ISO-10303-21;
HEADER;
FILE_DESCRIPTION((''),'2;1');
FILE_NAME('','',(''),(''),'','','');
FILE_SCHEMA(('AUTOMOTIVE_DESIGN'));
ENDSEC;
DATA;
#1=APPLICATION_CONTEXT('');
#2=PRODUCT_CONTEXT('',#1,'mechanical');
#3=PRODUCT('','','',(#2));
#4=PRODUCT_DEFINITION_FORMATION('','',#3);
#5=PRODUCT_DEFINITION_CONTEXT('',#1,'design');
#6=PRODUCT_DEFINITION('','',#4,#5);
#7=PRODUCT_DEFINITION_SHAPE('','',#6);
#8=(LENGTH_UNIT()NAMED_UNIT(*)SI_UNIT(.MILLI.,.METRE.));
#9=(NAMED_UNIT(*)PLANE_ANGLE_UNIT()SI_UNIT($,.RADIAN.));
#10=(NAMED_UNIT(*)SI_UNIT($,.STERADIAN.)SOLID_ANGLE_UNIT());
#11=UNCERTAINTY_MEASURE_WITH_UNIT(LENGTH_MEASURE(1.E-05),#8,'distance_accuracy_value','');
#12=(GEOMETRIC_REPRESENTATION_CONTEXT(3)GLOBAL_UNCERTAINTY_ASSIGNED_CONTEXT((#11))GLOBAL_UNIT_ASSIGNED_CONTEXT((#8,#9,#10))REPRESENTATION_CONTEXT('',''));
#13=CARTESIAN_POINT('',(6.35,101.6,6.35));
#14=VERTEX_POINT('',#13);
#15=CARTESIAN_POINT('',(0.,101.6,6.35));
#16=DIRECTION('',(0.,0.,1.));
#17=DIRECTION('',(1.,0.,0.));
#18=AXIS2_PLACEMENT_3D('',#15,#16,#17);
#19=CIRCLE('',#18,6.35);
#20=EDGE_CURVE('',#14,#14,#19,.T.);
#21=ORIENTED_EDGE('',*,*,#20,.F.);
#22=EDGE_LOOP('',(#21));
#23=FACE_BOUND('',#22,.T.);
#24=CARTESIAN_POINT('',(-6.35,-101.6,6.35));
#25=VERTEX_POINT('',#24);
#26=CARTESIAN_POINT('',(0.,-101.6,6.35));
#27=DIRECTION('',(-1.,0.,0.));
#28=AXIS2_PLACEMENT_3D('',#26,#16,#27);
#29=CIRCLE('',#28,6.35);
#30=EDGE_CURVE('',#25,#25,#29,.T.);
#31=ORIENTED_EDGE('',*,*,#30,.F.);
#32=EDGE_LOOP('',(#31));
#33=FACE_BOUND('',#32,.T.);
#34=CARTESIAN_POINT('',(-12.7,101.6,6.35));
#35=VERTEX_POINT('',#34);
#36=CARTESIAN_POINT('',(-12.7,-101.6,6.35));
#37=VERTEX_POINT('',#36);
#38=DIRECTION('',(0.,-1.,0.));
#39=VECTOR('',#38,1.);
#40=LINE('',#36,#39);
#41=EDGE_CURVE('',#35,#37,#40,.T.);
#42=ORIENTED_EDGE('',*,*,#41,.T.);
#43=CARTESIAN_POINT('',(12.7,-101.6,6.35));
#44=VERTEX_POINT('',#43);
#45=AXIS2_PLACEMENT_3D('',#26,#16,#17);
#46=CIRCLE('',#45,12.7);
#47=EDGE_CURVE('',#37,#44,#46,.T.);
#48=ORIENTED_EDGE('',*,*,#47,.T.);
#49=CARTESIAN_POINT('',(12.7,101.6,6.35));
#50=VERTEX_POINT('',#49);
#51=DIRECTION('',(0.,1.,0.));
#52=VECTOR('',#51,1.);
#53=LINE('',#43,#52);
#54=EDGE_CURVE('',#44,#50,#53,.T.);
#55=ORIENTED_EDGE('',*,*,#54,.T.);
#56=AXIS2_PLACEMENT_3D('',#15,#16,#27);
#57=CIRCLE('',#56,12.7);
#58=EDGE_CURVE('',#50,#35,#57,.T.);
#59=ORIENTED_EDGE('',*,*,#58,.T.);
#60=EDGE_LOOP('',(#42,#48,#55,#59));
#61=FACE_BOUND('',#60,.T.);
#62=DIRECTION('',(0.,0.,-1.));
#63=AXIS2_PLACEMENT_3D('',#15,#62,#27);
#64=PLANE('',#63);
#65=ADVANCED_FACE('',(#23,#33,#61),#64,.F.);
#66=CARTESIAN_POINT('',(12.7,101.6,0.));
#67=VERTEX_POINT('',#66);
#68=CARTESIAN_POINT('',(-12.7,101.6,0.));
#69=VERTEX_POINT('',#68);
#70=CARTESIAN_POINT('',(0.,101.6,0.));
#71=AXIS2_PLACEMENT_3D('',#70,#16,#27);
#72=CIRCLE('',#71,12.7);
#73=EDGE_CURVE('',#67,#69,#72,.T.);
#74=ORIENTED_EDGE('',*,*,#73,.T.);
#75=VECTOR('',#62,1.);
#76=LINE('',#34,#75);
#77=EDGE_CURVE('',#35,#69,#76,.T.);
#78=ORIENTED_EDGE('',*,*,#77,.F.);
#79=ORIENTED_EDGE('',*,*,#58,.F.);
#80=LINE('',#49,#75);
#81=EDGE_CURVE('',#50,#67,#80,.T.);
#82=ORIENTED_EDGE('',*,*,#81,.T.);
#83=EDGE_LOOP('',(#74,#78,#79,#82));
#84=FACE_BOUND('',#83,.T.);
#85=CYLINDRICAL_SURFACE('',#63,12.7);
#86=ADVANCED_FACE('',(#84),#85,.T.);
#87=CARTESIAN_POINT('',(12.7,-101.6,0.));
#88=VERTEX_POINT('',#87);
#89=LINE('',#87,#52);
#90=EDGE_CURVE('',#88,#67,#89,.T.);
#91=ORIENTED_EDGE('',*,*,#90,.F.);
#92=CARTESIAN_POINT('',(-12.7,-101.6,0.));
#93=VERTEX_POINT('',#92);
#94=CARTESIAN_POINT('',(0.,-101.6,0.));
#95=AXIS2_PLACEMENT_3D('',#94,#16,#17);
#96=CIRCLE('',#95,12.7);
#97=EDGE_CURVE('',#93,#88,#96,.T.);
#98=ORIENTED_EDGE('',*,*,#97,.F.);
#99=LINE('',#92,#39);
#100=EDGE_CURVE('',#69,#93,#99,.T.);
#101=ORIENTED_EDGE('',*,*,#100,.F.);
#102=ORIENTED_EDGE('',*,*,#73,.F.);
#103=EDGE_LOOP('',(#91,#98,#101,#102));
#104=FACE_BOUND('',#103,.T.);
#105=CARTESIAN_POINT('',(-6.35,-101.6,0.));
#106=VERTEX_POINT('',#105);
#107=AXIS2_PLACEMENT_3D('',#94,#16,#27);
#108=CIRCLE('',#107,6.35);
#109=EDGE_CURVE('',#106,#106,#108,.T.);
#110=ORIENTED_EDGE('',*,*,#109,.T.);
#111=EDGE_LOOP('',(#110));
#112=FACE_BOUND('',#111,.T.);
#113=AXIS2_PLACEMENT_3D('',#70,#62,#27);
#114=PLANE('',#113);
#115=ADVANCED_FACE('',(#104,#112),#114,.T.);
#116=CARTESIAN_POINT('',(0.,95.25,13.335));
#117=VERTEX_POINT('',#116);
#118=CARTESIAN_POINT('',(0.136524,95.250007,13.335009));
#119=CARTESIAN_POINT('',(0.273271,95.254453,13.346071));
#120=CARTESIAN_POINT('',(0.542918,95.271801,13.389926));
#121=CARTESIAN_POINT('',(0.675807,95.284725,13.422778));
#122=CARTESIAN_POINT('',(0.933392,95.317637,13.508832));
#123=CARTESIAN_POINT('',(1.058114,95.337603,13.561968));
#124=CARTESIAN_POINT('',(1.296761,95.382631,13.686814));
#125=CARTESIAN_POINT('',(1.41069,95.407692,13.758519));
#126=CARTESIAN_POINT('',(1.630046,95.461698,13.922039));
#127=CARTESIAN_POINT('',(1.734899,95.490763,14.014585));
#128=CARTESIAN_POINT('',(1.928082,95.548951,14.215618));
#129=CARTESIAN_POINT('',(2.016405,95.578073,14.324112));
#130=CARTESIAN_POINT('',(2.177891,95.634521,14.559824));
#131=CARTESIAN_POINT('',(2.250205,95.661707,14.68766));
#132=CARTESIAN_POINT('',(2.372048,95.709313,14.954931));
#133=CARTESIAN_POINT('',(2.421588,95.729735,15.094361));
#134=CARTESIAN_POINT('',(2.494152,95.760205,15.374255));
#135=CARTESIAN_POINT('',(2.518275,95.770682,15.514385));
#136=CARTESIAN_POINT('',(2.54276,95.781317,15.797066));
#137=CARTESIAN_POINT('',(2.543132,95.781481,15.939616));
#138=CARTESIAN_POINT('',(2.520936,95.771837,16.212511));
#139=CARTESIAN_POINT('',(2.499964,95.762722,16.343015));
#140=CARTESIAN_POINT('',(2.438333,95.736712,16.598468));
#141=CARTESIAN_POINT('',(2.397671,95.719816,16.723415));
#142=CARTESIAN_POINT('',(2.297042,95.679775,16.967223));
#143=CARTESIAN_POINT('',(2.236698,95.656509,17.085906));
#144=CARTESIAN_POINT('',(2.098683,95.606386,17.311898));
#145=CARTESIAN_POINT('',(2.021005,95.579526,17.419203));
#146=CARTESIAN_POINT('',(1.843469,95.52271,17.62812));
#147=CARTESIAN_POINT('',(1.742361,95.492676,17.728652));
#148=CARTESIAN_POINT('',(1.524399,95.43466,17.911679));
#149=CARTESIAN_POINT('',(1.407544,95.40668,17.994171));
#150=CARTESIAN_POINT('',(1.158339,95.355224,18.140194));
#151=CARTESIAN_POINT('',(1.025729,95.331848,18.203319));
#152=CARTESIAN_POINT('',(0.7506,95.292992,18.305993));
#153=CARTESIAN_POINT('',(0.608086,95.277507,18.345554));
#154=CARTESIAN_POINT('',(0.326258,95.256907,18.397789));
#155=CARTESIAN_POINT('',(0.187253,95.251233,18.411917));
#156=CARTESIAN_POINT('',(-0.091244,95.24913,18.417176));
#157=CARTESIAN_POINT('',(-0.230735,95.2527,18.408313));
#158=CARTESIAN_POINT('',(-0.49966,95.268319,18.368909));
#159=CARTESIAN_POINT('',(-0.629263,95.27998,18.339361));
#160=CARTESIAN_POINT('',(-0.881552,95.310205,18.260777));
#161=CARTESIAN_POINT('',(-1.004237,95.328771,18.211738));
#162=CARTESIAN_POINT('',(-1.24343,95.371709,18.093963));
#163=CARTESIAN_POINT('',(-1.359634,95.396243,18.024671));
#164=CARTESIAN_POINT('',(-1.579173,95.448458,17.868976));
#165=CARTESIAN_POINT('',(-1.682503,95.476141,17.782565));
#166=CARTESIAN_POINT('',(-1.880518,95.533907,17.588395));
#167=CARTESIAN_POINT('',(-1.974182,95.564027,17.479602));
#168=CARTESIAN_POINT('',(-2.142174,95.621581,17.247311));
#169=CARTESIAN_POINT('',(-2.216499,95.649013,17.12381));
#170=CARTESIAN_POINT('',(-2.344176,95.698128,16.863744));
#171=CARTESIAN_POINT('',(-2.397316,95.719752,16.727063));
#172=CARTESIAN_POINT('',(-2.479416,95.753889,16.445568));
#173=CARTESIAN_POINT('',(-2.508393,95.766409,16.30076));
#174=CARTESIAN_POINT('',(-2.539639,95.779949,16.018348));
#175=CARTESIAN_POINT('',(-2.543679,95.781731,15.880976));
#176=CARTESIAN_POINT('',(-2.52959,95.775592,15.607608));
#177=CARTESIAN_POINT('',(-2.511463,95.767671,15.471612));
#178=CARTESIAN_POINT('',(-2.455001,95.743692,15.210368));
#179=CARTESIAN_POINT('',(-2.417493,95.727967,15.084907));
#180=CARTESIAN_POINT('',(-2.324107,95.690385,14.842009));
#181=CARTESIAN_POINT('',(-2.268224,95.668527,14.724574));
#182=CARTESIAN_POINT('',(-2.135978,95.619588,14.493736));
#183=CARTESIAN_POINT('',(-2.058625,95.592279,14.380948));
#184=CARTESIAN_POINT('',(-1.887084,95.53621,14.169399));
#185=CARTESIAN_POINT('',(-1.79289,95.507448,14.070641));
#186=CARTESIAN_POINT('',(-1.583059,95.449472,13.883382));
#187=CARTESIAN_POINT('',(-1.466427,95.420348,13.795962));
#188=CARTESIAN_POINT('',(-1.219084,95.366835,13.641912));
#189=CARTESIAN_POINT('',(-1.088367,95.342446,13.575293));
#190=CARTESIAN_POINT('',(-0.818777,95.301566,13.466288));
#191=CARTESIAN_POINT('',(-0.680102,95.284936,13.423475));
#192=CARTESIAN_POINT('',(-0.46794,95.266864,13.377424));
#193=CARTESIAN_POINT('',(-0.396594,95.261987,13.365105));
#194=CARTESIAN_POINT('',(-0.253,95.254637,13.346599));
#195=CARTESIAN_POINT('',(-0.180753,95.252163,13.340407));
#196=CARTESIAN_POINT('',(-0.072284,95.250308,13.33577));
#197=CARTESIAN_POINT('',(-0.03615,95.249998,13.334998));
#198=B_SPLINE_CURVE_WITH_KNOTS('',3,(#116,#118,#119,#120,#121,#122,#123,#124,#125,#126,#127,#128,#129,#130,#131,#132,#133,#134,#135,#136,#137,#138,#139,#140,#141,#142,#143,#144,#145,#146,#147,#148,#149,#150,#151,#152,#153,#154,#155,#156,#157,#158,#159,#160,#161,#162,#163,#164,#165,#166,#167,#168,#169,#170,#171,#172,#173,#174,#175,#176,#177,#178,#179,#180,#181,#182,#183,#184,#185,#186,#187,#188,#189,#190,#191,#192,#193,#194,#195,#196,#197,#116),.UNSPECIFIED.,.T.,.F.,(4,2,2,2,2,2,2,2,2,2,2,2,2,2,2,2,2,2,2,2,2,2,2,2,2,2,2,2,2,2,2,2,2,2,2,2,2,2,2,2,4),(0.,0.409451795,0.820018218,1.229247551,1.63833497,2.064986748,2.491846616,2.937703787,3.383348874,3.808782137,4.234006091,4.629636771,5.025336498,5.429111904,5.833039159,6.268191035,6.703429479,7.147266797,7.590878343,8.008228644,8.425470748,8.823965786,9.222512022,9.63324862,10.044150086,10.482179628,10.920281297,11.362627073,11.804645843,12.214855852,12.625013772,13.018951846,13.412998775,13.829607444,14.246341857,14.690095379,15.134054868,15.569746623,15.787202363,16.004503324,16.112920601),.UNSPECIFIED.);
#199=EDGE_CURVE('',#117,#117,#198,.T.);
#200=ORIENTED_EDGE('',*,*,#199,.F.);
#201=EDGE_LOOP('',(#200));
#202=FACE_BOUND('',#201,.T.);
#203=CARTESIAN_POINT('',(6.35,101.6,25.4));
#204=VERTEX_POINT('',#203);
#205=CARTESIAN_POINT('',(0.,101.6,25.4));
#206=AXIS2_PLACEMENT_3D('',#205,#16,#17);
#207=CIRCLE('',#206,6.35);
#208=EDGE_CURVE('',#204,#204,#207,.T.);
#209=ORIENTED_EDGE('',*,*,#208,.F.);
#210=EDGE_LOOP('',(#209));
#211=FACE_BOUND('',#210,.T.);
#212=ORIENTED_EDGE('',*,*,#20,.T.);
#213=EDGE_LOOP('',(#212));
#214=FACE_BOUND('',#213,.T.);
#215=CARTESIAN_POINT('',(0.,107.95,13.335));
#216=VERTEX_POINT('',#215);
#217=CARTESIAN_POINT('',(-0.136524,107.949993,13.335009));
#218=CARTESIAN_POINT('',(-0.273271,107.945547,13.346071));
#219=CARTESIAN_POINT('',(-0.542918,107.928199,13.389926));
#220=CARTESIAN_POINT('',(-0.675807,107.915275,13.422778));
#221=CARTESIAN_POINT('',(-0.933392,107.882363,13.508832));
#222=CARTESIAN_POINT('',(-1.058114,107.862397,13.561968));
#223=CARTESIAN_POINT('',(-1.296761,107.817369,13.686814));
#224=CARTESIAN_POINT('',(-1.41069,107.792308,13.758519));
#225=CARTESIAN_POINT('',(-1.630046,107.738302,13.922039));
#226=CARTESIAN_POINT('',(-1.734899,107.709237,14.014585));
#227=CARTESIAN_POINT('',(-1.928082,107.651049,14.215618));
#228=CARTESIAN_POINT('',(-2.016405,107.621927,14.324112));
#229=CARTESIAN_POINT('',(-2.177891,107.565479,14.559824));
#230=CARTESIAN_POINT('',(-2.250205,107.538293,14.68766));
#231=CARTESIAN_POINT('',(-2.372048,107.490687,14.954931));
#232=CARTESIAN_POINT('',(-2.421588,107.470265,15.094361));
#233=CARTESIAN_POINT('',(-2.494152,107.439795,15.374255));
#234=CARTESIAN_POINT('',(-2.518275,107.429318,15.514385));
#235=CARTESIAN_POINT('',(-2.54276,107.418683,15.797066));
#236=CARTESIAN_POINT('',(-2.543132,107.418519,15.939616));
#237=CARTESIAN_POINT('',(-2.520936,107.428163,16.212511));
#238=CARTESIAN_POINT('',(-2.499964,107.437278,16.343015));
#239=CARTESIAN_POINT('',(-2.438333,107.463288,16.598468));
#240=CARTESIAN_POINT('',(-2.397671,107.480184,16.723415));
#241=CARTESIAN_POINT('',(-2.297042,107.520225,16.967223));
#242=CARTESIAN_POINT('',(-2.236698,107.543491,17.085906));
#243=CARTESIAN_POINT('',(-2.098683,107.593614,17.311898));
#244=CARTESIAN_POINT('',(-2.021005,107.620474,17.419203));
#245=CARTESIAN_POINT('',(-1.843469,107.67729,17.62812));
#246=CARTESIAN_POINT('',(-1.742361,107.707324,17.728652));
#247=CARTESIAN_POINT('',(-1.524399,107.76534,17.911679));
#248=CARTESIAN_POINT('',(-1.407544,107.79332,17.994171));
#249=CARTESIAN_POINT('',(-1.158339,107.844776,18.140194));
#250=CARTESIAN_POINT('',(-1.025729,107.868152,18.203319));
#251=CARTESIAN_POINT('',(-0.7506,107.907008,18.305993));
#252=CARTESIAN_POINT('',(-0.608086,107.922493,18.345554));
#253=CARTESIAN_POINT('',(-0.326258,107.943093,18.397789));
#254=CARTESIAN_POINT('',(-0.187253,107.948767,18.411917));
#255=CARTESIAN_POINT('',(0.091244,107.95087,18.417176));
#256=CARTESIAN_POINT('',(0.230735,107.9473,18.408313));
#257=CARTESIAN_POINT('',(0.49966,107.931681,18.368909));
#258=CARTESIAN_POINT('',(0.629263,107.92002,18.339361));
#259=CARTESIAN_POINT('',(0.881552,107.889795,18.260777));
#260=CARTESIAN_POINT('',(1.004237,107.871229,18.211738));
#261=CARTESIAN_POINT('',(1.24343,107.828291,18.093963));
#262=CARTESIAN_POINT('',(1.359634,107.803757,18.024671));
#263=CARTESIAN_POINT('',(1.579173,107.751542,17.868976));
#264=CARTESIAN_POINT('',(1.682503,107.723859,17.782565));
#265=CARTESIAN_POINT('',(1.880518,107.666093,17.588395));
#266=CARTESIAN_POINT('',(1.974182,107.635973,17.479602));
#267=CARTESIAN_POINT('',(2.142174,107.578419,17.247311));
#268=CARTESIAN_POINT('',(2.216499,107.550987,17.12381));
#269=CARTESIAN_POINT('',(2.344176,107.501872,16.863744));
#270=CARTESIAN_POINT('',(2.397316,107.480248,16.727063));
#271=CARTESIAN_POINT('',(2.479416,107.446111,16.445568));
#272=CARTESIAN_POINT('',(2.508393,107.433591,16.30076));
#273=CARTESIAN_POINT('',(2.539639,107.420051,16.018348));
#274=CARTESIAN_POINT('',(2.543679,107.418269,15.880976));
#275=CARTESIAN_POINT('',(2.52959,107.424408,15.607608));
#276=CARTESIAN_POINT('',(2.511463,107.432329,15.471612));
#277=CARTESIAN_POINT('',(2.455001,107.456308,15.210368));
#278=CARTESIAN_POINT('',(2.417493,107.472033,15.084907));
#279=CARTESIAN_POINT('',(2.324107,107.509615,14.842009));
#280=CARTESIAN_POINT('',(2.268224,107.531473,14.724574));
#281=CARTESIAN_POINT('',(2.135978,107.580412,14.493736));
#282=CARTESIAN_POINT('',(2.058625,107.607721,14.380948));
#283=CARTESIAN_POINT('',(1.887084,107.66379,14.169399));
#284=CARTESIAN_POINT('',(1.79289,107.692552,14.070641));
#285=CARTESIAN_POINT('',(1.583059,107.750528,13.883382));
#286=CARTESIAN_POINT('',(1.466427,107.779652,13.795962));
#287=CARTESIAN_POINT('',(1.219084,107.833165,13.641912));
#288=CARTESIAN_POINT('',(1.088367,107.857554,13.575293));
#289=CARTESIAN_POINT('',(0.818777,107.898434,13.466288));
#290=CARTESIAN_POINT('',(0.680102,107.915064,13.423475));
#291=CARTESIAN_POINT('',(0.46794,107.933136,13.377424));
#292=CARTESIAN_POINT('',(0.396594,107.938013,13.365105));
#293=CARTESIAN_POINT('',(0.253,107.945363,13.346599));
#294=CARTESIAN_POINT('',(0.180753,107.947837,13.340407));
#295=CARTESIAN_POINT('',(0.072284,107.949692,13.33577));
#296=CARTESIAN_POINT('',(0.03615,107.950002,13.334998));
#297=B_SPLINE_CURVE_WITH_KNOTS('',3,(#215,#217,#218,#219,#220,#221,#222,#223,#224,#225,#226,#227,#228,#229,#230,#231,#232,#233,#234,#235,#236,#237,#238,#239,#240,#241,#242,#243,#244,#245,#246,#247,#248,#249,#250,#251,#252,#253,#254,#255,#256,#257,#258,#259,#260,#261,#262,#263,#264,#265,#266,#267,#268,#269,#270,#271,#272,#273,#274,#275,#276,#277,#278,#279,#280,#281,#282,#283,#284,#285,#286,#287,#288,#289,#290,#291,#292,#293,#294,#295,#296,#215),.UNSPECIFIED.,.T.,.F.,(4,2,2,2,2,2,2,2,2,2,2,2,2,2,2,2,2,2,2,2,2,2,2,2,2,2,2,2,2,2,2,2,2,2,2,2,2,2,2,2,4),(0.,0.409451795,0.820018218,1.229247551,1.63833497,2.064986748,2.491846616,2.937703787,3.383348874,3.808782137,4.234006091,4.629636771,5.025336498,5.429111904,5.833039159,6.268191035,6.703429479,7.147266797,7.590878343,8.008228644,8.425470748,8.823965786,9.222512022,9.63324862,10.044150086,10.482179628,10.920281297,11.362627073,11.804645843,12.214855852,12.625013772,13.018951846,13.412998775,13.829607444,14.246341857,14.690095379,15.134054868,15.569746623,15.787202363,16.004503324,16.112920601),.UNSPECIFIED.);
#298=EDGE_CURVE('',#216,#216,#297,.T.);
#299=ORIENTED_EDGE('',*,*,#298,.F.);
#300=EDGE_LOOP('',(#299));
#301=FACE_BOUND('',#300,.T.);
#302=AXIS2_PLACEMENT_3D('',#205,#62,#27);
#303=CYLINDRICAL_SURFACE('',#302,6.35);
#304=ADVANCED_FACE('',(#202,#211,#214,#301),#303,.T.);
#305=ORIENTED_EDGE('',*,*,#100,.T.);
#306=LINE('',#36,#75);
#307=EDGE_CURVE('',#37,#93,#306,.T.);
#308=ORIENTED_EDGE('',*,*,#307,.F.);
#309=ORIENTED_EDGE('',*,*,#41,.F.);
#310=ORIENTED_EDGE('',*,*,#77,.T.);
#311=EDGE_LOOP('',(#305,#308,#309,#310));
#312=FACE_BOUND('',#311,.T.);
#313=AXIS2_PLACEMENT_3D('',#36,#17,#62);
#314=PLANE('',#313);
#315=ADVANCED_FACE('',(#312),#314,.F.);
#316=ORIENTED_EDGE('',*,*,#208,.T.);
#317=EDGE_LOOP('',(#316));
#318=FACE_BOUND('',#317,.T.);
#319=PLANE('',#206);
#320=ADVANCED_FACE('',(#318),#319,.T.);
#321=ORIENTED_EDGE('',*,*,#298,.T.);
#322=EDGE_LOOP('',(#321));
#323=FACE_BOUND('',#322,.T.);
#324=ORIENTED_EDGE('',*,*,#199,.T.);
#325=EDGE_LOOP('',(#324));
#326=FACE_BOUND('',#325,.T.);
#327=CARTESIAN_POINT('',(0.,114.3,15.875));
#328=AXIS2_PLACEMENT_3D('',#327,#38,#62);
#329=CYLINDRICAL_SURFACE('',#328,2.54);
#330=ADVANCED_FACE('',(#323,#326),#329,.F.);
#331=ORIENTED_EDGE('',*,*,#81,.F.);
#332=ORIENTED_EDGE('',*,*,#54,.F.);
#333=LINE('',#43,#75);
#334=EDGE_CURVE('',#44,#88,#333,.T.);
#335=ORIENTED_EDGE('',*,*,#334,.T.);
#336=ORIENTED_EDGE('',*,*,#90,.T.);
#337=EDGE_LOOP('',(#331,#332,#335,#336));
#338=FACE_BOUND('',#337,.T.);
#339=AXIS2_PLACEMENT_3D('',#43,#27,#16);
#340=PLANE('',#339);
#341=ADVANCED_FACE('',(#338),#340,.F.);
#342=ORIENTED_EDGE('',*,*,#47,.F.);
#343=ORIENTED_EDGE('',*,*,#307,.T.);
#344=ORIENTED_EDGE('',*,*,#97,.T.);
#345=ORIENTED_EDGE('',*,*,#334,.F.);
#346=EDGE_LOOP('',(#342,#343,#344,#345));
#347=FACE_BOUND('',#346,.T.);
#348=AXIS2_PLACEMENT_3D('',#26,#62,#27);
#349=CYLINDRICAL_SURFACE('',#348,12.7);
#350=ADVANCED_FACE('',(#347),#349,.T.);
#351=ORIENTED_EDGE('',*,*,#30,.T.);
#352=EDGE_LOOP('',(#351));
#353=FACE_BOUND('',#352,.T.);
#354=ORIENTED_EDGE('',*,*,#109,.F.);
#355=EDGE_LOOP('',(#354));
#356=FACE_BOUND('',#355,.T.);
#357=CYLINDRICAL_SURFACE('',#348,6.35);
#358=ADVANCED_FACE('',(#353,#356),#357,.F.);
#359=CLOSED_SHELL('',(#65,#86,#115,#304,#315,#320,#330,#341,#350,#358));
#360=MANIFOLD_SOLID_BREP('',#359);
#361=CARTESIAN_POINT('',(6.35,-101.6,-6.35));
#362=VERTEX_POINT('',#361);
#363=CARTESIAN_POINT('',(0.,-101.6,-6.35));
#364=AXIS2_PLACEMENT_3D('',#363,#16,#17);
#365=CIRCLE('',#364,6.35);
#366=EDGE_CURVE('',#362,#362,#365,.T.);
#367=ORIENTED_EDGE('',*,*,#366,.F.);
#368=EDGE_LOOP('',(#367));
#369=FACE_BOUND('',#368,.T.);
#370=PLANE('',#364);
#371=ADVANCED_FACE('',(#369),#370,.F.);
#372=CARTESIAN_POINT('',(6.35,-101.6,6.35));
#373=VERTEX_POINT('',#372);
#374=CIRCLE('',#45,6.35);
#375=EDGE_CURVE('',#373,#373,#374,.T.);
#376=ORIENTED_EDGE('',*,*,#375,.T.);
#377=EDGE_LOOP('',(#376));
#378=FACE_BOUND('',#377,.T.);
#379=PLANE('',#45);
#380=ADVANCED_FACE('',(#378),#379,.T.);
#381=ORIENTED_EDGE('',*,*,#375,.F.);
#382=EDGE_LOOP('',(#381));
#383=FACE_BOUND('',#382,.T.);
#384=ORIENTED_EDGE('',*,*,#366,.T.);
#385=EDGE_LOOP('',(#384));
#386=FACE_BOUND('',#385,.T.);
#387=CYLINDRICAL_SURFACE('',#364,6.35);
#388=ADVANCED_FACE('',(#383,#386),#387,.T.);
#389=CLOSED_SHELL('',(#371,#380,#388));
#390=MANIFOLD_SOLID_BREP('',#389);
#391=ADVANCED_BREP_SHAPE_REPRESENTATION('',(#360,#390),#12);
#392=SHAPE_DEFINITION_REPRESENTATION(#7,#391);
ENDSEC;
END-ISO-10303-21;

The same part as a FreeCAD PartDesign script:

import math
import FreeCAD as App
import Part
import Sketcher
from FreeCAD import Vector
Q = App.Units.Quantity

doc = App.newDocument("Part")
params = doc.addObject("Spreadsheet::Sheet", "Params")
for row, (alias, value) in enumerate([
    ("sketch1_diameter", "0.5 in"),
    ("sketch1_radius", "0.5 in"),
    ("sketch1_height", "8 in"),
    ("pad1_length", "0.25 in"),
    ("sketch2_diameter", "0.5 in"),
    ("pad2_length", "1 in"),
    ("sketch3_diameter", "0.2 in"),
    ("sketch4_diameter", "0.5 in"),
    ("pad3_length", "0.5 in"),
], start=1):
    params.set(f"A{row}", alias)
    params.set(f"B{row}", "=" + value)
    params.setAlias(f"B{row}", alias)

body = doc.addObject("PartDesign::Body", "Body")

sketch1 = body.newObject("Sketcher::SketchObject", "Sketch")
sketch1.AttachmentSupport = (doc.getObject("XY_Plane"), [""])
sketch1.MapMode = "FlatFace"
sketch1.addGeometry([
    Part.LineSegment(Vector(-13, 102, 0), Vector(-13, -102, 0)),
    Part.ArcOfCircle(Part.Circle(Vector(0, -102, 0), Vector(0, 0, 1), 13), math.radians(180), math.radians(360)),
    Part.LineSegment(Vector(13, -102, 0), Vector(13, 102, 0)),
    Part.ArcOfCircle(Part.Circle(Vector(0, 102, 0), Vector(0, 0, 1), 13), math.radians(0), math.radians(180)),
    Part.Circle(Vector(0, -102, 0), Vector(0, 0, 1), 6),
    Part.Circle(Vector(0, 102, 0), Vector(0, 0, 1), 6),
], False)
sketch1.addConstraint([
    Sketcher.Constraint("Tangent", 0, 2, 1, 1),
    Sketcher.Constraint("Tangent", 1, 2, 2, 1),
    Sketcher.Constraint("Tangent", 2, 2, 3, 1),
    Sketcher.Constraint("Tangent", 3, 2, 0, 1),
    Sketcher.Constraint("Vertical", 0),
    Sketcher.Constraint("Vertical", 2),
    Sketcher.Constraint("Coincident", 4, 3, 1, 3),
    Sketcher.Constraint("Coincident", 5, 3, 3, 3),
    Sketcher.Constraint("Equal", 4, 5),
    Sketcher.Constraint("Symmetric", 1, 3, 3, 3, -1, 1),
    Sketcher.Constraint("Diameter", 4, Q("0.5 in")),
    Sketcher.Constraint("Radius", 1, Q("0.5 in")),
    Sketcher.Constraint("DistanceY", 0, 2, 0, 1, Q("8 in")),
])
sketch1.setExpression("Constraints[10]", "Params.sketch1_diameter")
sketch1.setExpression("Constraints[11]", "Params.sketch1_radius")
sketch1.setExpression("Constraints[12]", "Params.sketch1_height")
pad1 = body.newObject("PartDesign::Pad", "Pad")
pad1.Profile = sketch1
pad1.setExpression("Length", "Params.pad1_length")

sketch2 = body.newObject("Sketcher::SketchObject", "Sketch001")
sketch2.AttachmentSupport = (doc.getObject("XY_Plane"), [""])
sketch2.MapMode = "FlatFace"
sketch2.addGeometry(Part.Circle(Vector(0, 102, 0), Vector(0, 0, 1), 6), False)
sketch2.addConstraint([
    Sketcher.Constraint("PointOnObject", 0, 3, -2),
    Sketcher.Constraint("Diameter", 0, Q("0.5 in")),
    Sketcher.Constraint("DistanceY", -1, 1, 0, 3, Q("4 in")),
])
sketch2.setExpression("Constraints[1]", "Params.sketch2_diameter")
pad2 = body.newObject("PartDesign::Pad", "Pad001")
pad2.Profile = sketch2
pad2.setExpression("Length", "Params.pad2_length")

sketch3 = body.newObject("Sketcher::SketchObject", "Sketch002")
sketch3.AttachmentSupport = (doc.getObject("XZ_Plane"), [""])
sketch3.MapMode = "FlatFace"
sketch3.addGeometry(Part.Circle(Vector(0, 15.9, 0), Vector(0, 0, 1), 2.5), False)
sketch3.addConstraint([
    Sketcher.Constraint("PointOnObject", 0, 3, -2),
    Sketcher.Constraint("Diameter", 0, Q("0.2 in")),
    Sketcher.Constraint("DistanceY", -1, 1, 0, 3, Q("0.625 in")),
])
sketch3.setExpression("Constraints[1]", "Params.sketch3_diameter")
pocket1 = body.newObject("PartDesign::Pocket", "Pocket")
pocket1.Profile = sketch3
pocket1.Type = "ThroughAll"
body2 = doc.addObject("PartDesign::Body", "Body001")

sketch4 = body2.newObject("Sketcher::SketchObject", "Sketch003")
sketch4.AttachmentSupport = (doc.getObject("XY_Plane001"), [""])
sketch4.MapMode = "FlatFace"
sketch4.addGeometry(Part.Circle(Vector(0, -102, 0), Vector(0, 0, 1), 6), False)
sketch4.addConstraint([
    Sketcher.Constraint("PointOnObject", 0, 3, -2),
    Sketcher.Constraint("Diameter", 0, Q("0.5 in")),
    Sketcher.Constraint("DistanceY", 0, 3, -1, 1, Q("4 in")),
])
sketch4.setExpression("Constraints[1]", "Params.sketch4_diameter")
pad3 = body2.newObject("PartDesign::Pad", "Pad002")
pad3.Profile = sketch4
pad3.setExpression("Length", "Params.pad3_length")
pad3.Midplane = True

doc.recompute()
